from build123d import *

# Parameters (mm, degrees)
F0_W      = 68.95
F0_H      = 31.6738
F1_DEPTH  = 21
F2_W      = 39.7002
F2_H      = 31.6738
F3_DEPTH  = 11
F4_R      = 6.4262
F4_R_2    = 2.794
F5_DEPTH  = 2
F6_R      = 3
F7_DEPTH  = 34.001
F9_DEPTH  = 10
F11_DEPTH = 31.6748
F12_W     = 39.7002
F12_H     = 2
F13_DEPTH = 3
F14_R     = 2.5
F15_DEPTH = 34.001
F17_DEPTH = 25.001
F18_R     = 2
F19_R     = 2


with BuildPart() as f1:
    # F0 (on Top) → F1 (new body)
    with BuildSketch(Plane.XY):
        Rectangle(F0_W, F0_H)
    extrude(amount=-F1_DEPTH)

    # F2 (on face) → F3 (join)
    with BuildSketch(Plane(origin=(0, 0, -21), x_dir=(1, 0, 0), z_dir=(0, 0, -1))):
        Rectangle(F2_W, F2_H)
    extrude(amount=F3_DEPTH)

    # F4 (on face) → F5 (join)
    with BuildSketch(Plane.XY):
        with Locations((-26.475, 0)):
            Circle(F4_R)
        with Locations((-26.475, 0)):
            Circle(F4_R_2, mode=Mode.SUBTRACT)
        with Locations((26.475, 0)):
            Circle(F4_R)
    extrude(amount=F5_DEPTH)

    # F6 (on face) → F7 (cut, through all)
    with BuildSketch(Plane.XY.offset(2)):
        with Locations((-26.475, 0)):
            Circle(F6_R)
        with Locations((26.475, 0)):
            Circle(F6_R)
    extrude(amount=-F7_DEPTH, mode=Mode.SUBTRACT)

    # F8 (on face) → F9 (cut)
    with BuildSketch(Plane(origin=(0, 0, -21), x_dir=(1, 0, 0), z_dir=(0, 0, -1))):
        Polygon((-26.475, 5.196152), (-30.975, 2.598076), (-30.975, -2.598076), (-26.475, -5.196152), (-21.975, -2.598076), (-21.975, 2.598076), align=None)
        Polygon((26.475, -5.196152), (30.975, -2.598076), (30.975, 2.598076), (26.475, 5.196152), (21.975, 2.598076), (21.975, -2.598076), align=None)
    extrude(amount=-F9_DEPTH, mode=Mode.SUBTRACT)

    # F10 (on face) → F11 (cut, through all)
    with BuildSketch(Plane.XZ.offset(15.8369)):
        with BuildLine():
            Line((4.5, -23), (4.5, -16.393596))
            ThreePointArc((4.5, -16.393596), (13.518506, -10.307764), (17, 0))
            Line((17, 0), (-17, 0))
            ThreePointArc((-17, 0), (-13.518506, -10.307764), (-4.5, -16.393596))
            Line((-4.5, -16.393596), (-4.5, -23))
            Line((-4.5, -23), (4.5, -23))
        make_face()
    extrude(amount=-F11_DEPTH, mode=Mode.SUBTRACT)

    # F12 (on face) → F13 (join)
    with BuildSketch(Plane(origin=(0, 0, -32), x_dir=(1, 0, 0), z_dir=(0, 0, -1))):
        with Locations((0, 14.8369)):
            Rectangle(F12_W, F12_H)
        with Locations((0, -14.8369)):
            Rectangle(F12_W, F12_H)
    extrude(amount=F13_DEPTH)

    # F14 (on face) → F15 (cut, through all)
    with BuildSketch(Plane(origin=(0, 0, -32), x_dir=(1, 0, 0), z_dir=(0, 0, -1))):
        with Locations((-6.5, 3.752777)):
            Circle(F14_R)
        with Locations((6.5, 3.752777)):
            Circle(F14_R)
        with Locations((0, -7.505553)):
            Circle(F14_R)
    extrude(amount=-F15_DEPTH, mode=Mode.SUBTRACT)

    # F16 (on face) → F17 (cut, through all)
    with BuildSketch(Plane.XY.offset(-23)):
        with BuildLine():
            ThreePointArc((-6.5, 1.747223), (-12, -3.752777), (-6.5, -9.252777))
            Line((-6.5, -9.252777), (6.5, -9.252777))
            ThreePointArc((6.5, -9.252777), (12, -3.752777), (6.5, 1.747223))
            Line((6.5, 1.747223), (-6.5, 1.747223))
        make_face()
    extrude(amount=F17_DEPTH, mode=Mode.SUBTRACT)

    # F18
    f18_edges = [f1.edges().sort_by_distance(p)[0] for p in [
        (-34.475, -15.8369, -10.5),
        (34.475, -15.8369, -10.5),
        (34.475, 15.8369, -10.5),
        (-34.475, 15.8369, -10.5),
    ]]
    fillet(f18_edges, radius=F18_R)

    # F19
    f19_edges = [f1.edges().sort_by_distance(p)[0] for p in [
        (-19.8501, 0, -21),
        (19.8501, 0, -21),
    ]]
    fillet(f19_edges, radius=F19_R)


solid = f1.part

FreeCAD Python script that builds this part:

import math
import FreeCAD as App
import Part
import Sketcher
from FreeCAD import Vector
Q = App.Units.Quantity


def edges_at(feature, points):
    """Names of the edges that pass closest to the given points."""
    edges = feature.Shape.Edges
    near = lambda p: min(range(len(edges)), key=lambda i: edges[i].distToShape(Part.Vertex(*p))[0])
    return sorted({f"Edge{near(p) + 1}" for p in points})


def add_polygon(sketch, points):
    """Adds a closed chain of lines whose ends are joined by coincident constraints."""
    first, n = sketch.GeometryCount, len(points)
    for a, b in zip(points, points[1:] + points[:1]):
        sketch.addGeometry(Part.LineSegment(App.Vector(*a, 0), App.Vector(*b, 0)), False)
    for i in range(n):
        sketch.addConstraint(Sketcher.Constraint("Coincident", first + i, 2, first + (i + 1) % n, 1))

doc = App.newDocument("Part")
body = doc.addObject("PartDesign::Body", "Body")

sketch1 = doc.addObject("Sketcher::SketchObject", "Sketch")
body.addObject(sketch1)
sketch1.AttachmentSupport = (doc.XY_Plane, [""])
sketch1.MapMode = "FlatFace"
add_polygon(sketch1, [(-34.475, 15.8369), (-34.475, -15.8369), (34.475, -15.8369), (34.475, 15.8369)])
sketch1.addConstraint([
    Sketcher.Constraint("Vertical", 0),
    Sketcher.Constraint("Horizontal", 1),
    Sketcher.Constraint("Vertical", 2),
    Sketcher.Constraint("Horizontal", 3),
    Sketcher.Constraint("Symmetric", 0, 2, 2, 2, -1, 1),
    Sketcher.Constraint("DistanceX", 1, 1, 1, 2, 68.95),
    Sketcher.Constraint("DistanceY", 0, 2, 0, 1, 31.6738),
])
pad1 = doc.addObject("PartDesign::Pad", "Pad")
body.addObject(pad1)
pad1.Profile = sketch1
pad1.Length = 21
pad1.Reversed = True

sketch2 = doc.addObject("Sketcher::SketchObject", "Sketch001")
body.addObject(sketch2)
sketch2.AttachmentSupport = (doc.XY_Plane, [""])
sketch2.MapMode = "FlatFace"
sketch2.AttachmentOffset = App.Placement(Vector(0, 0, -21), App.Rotation())
add_polygon(sketch2, [(-19.8501, -15.8369), (-19.8501, 15.8369), (19.8501, 15.8369), (19.8501, -15.8369)])
sketch2.addConstraint([
    Sketcher.Constraint("Vertical", 0),
    Sketcher.Constraint("Horizontal", 1),
    Sketcher.Constraint("Vertical", 2),
    Sketcher.Constraint("Horizontal", 3),
    Sketcher.Constraint("Symmetric", 0, 2, 2, 2, -1, 1),
    Sketcher.Constraint("DistanceX", 1, 1, 1, 2, 39.7002),
    Sketcher.Constraint("DistanceY", 0, 1, 0, 2, 31.6738),
])
pad2 = doc.addObject("PartDesign::Pad", "Pad001")
body.addObject(pad2)
pad2.Profile = sketch2
pad2.Length = 11
pad2.Reversed = True

sketch3 = doc.addObject("Sketcher::SketchObject", "Sketch002")
body.addObject(sketch3)
sketch3.AttachmentSupport = (doc.XY_Plane, [""])
sketch3.MapMode = "FlatFace"
sketch3.addGeometry([
    Part.Circle(Vector(-26.475, 0, 0), Vector(0, 0, 1), 6.4262),
    Part.Circle(Vector(-26.475, 0, 0), Vector(0, 0, 1), 2.794),
    Part.Circle(Vector(26.475, 0, 0), Vector(0, 0, 1), 6.4262),
], False)
sketch3.addConstraint([
    Sketcher.Constraint("Coincident", 1, 3, 0, 3),
    Sketcher.Constraint("Equal", 0, 2),
    Sketcher.Constraint("Symmetric", 0, 3, 2, 3, -1, 1),
    Sketcher.Constraint("PointOnObject", 0, 3, -1),
    Sketcher.Constraint("Diameter", 1, 5.588),
    Sketcher.Constraint("Diameter", 0, 12.8524),
    Sketcher.Constraint("DistanceX", 0, 3, 2, 3, 52.95),
])
pad3 = doc.addObject("PartDesign::Pad", "Pad002")
body.addObject(pad3)
pad3.Profile = sketch3
pad3.Length = 2

sketch4 = doc.addObject("Sketcher::SketchObject", "Sketch003")
body.addObject(sketch4)
sketch4.AttachmentSupport = (doc.XY_Plane, [""])
sketch4.MapMode = "FlatFace"
sketch4.AttachmentOffset = App.Placement(Vector(0, 0, 2), App.Rotation())
sketch4.addGeometry([
    Part.Circle(Vector(-26.475, 0, 0), Vector(0, 0, 1), 3),
    Part.Circle(Vector(26.475, 0, 0), Vector(0, 0, 1), 3),
], False)
sketch4.addConstraint([
    Sketcher.Constraint("Equal", 0, 1),
    Sketcher.Constraint("Symmetric", 0, 3, 1, 3, -1, 1),
    Sketcher.Constraint("PointOnObject", 0, 3, -1),
    Sketcher.Constraint("Diameter", 0, 6.0),
    Sketcher.Constraint("DistanceX", 0, 3, 1, 3, 52.95),
])
pocket1 = doc.addObject("PartDesign::Pocket", "Pocket")
body.addObject(pocket1)
pocket1.Profile = sketch4
pocket1.Type = "ThroughAll"

sketch5 = doc.addObject("Sketcher::SketchObject", "Sketch004")
body.addObject(sketch5)
sketch5.AttachmentSupport = (doc.XY_Plane, [""])
sketch5.MapMode = "FlatFace"
sketch5.AttachmentOffset = App.Placement(Vector(0, 0, -21), App.Rotation())
add_polygon(sketch5, [(-26.475, -5.196152), (-30.975, -2.598076), (-30.975, 2.598076), (-26.475, 5.196152), (-21.975, 2.598076), (-21.975, -2.598076)])
add_polygon(sketch5, [(26.475, 5.196152), (30.975, 2.598076), (30.975, -2.598076), (26.475, -5.196152), (21.975, -2.598076), (21.975, 2.598076)])
sketch5.addConstraint([
    Sketcher.Constraint("Vertical", 1),
    Sketcher.Constraint("Vertical", 4),
    Sketcher.Constraint("Vertical", 7),
    Sketcher.Constraint("Vertical", 10),
    Sketcher.Constraint("Symmetric", 0, 2, 6, 2, -1, 1),
    Sketcher.Constraint("Symmetric", 2, 2, 8, 2, -1, 1),
    Sketcher.Constraint("Symmetric", 3, 2, 9, 2, -1, 1),
    Sketcher.Constraint("Symmetric", 5, 2, 11, 2, -1, 1),
    Sketcher.Constraint("Symmetric", 5, 2, 8, 2, -2),
    Sketcher.Constraint("Parallel", 0, 3),
    Sketcher.Constraint("Parallel", 2, 5),
    Sketcher.Constraint("Parallel", 5, 8),
    Sketcher.Constraint("Parallel", 8, 11),
    Sketcher.Constraint("Horizontal", 1, 2, 3, 2),
    Sketcher.Constraint("Horizontal", 0, 2, 4, 2),
    Sketcher.Constraint("Angle", 0, Q("150.000002 deg")),
    Sketcher.Constraint("DistanceX", 1, 2, 3, 2, 9.0),
    Sketcher.Constraint("DistanceX", 3, 2, 6, 2, 52.95),
    Sketcher.Constraint("DistanceY", 1, 1, 1, 2, 5.196152),
])
pocket2 = doc.addObject("PartDesign::Pocket", "Pocket001")
body.addObject(pocket2)
pocket2.Profile = sketch5
pocket2.Length = 10
pocket2.Reversed = True

sketch6 = doc.addObject("Sketcher::SketchObject", "Sketch005")
body.addObject(sketch6)
sketch6.AttachmentSupport = (doc.XZ_Plane, [""])
sketch6.MapMode = "FlatFace"
sketch6.AttachmentOffset = App.Placement(Vector(0, 0, 15.8369), App.Rotation())
sketch6.addGeometry([
    Part.LineSegment(Vector(4.5, -23, 0), Vector(4.5, -16.393596, 0)),
    Part.ArcOfCircle(Part.Circle(Vector(0.000001, -0.000001, 0), Vector(0, 0, 1), 16.999999), math.radians(-74.650526), math.radians(0.000002)),
    Part.LineSegment(Vector(17, 0, 0), Vector(-17, 0, 0)),
    Part.ArcOfCircle(Part.Circle(Vector(-0.000001, -0.000001, 0), Vector(0, 0, 1), 16.999999), math.radians(179.999998), math.radians(254.650526)),
    Part.LineSegment(Vector(-4.5, -16.393596, 0), Vector(-4.5, -23, 0)),
    Part.LineSegment(Vector(-4.5, -23, 0), Vector(4.5, -23, 0)),
], False)
sketch6.addConstraint([
    Sketcher.Constraint("Coincident", 0, 2, 1, 1),
    Sketcher.Constraint("Coincident", 1, 2, 2, 1),
    Sketcher.Constraint("Coincident", 2, 2, 3, 1),
    Sketcher.Constraint("Coincident", 3, 2, 4, 1),
    Sketcher.Constraint("Coincident", 4, 2, 5, 1),
    Sketcher.Constraint("Coincident", 5, 2, 0, 1),
    Sketcher.Constraint("Vertical", 0),
    Sketcher.Constraint("Horizontal", 2),
    Sketcher.Constraint("Vertical", 4),
    Sketcher.Constraint("Horizontal", 5),
    Sketcher.Constraint("Coincident", 1, 3, -1, 1),
    Sketcher.Constraint("Coincident", 3, 3, -1, 1),
    Sketcher.Constraint("Equal", 1, 3),
    Sketcher.Constraint("PointOnObject", 1, 2, -1),
    Sketcher.Constraint("Horizontal", 0, 2, 3, 2),
    Sketcher.Constraint("Radius", 1, 16.999999),
    Sketcher.Constraint("DistanceX", 5, 1, 5, 2, 9.0),
    Sketcher.Constraint("DistanceY", 4, 2, -1, 1, 23.0),
])
pocket3 = doc.addObject("PartDesign::Pocket", "Pocket002")
body.addObject(pocket3)
pocket3.Profile = sketch6
pocket3.Type = "ThroughAll"

sketch7 = doc.addObject("Sketcher::SketchObject", "Sketch006")
body.addObject(sketch7)
sketch7.AttachmentSupport = (doc.XY_Plane, [""])
sketch7.MapMode = "FlatFace"
sketch7.AttachmentOffset = App.Placement(Vector(0, 0, -32), App.Rotation())
add_polygon(sketch7, [(-19.8501, -15.8369), (-19.8501, -13.8369), (19.8501, -13.8369), (19.8501, -15.8369)])
add_polygon(sketch7, [(-19.8501, 13.8369), (-19.8501, 15.8369), (19.8501, 15.8369), (19.8501, 13.8369)])
sketch7.addConstraint([
    Sketcher.Constraint("Vertical", 0),
    Sketcher.Constraint("Horizontal", 1),
    Sketcher.Constraint("Vertical", 2),
    Sketcher.Constraint("Horizontal", 3),
    Sketcher.Constraint("Vertical", 4),
    Sketcher.Constraint("Horizontal", 5),
    Sketcher.Constraint("Vertical", 6),
    Sketcher.Constraint("Horizontal", 7),
    Sketcher.Constraint("Symmetric", 2, 2, 4, 2, -1, 1),
    Sketcher.Constraint("Symmetric", 0, 2, 6, 2, -1, 1),
    Sketcher.Constraint("Vertical", 3, 2, 4, 2),
    Sketcher.Constraint("DistanceY", 0, 1, 0, 2, 2.0),
    Sketcher.Constraint("DistanceX", 1, 1, 1, 2, 39.7002),
    Sketcher.Constraint("DistanceY", 0, 2, -1, 1, 13.8369),
])
pad4 = doc.addObject("PartDesign::Pad", "Pad003")
body.addObject(pad4)
pad4.Profile = sketch7
pad4.Length = 3
pad4.Reversed = True

sketch8 = doc.addObject("Sketcher::SketchObject", "Sketch007")
body.addObject(sketch8)
sketch8.AttachmentSupport = (doc.XY_Plane, [""])
sketch8.MapMode = "FlatFace"
sketch8.AttachmentOffset = App.Placement(Vector(0, 0, -32), App.Rotation())
sketch8.addGeometry([
    Part.Circle(Vector(-6.5, -3.752777, 0), Vector(0, 0, 1), 2.5),
    Part.Circle(Vector(6.5, -3.752777, 0), Vector(0, 0, 1), 2.5),
    Part.Circle(Vector(0, 7.505553, 0), Vector(0, 0, 1), 2.5),
], False)
sketch8.addConstraint([
    Sketcher.Constraint("Equal", 0, 1),
    Sketcher.Constraint("Equal", 1, 2),
    Sketcher.Constraint("Symmetric", 0, 3, 1, 3, -2),
    Sketcher.Constraint("PointOnObject", 2, 3, -2),
    Sketcher.Constraint("Diameter", 0, 5.0),
    Sketcher.Constraint("DistanceX", 0, 3, 1, 3, 13.0),
    Sketcher.Constraint("DistanceY", 0, 3, 2, 3, 11.25833),
    Sketcher.Constraint("DistanceY", 0, 3, -1, 1, 3.752777),
])
pocket4 = doc.addObject("PartDesign::Pocket", "Pocket003")
body.addObject(pocket4)
pocket4.Profile = sketch8
pocket4.Type = "ThroughAll"
pocket4.Reversed = True

sketch9 = doc.addObject("Sketcher::SketchObject", "Sketch008")
body.addObject(sketch9)
sketch9.AttachmentSupport = (doc.XY_Plane, [""])
sketch9.MapMode = "FlatFace"
sketch9.AttachmentOffset = App.Placement(Vector(0, 0, -23), App.Rotation())
sketch9.addGeometry([
    Part.ArcOfCircle(Part.Circle(Vector(-6.5, -3.752777, 0), Vector(0, 0, 1), 5.5), math.radians(90), math.radians(270)),
    Part.LineSegment(Vector(-6.5, -9.252777, 0), Vector(6.5, -9.252777, 0)),
    Part.ArcOfCircle(Part.Circle(Vector(6.5, -3.752777, 0), Vector(0, 0, 1), 5.5), math.radians(-90), math.radians(90)),
    Part.LineSegment(Vector(6.5, 1.747223, 0), Vector(-6.5, 1.747223, 0)),
], False)
sketch9.addConstraint([
    Sketcher.Constraint("Tangent", 0, 2, 1, 1),
    Sketcher.Constraint("Tangent", 1, 2, 2, 1),
    Sketcher.Constraint("Tangent", 2, 2, 3, 1),
    Sketcher.Constraint("Tangent", 3, 2, 0, 1),
    Sketcher.Constraint("Horizontal", 1),
    Sketcher.Constraint("Horizontal", 3),
    Sketcher.Constraint("Radius", 0, 5.5),
    Sketcher.Constraint("DistanceX", 1, 1, 1, 2, 13.0),
    Sketcher.Constraint("DistanceX", 0, 3, -1, 1, 6.5),
    Sketcher.Constraint("DistanceY", 0, 3, -1, 1, 3.752777),
])
pocket5 = doc.addObject("PartDesign::Pocket", "Pocket004")
body.addObject(pocket5)
pocket5.Profile = sketch9
pocket5.Type = "ThroughAll"
pocket5.Reversed = True
doc.recompute()

fillet = doc.addObject("PartDesign::Fillet", "Fillet")
body.addObject(fillet)
fillet.Base = (pocket5, edges_at(pocket5, [
    (-34.475, -15.837, -10.5),
    (34.475, -15.837, -10.5),
    (34.475, 15.837, -10.5),
    (-34.475, 15.837, -10.5),
]))
fillet.Radius = 2
doc.recompute()

fillet2 = doc.addObject("PartDesign::Fillet", "Fillet001")
body.addObject(fillet2)
fillet2.Base = (fillet, edges_at(fillet, [(-19.85, 0, -21), (19.85, 0, -21)]))
fillet2.Radius = 2

doc.recompute()
